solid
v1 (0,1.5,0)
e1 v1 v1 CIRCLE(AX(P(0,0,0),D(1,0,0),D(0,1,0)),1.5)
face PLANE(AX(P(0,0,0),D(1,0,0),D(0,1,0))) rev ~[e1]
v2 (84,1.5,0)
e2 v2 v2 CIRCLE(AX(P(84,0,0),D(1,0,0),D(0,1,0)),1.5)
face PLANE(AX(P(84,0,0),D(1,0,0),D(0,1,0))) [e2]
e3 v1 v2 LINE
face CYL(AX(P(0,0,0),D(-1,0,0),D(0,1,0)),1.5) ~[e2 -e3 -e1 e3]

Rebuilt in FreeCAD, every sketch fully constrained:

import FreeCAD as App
import Part
import Sketcher
Q = App.Units.Quantity

doc = App.newDocument("Part")
body = doc.addObject("PartDesign::Body", "Body")

sketch1 = body.newObject("Sketcher::SketchObject", "Sketch")
sketch1.AttachmentSupport = (doc.getObject("YZ_Plane"), [""])
sketch1.MapMode = "FlatFace"
sketch1.addGeometry(Part.Circle(App.Vector(0, 0, 0), App.Vector(0, 0, 1), 1.5), False)
sketch1.addConstraint([
    Sketcher.Constraint("Coincident", 0, 3, -1, 1),
    Sketcher.Constraint("Diameter", 0, Q("3 mm")),
])
pad1 = body.newObject("PartDesign::Pad", "Pad")
pad1.Profile = sketch1
pad1.Length = 84

doc.recompute()
